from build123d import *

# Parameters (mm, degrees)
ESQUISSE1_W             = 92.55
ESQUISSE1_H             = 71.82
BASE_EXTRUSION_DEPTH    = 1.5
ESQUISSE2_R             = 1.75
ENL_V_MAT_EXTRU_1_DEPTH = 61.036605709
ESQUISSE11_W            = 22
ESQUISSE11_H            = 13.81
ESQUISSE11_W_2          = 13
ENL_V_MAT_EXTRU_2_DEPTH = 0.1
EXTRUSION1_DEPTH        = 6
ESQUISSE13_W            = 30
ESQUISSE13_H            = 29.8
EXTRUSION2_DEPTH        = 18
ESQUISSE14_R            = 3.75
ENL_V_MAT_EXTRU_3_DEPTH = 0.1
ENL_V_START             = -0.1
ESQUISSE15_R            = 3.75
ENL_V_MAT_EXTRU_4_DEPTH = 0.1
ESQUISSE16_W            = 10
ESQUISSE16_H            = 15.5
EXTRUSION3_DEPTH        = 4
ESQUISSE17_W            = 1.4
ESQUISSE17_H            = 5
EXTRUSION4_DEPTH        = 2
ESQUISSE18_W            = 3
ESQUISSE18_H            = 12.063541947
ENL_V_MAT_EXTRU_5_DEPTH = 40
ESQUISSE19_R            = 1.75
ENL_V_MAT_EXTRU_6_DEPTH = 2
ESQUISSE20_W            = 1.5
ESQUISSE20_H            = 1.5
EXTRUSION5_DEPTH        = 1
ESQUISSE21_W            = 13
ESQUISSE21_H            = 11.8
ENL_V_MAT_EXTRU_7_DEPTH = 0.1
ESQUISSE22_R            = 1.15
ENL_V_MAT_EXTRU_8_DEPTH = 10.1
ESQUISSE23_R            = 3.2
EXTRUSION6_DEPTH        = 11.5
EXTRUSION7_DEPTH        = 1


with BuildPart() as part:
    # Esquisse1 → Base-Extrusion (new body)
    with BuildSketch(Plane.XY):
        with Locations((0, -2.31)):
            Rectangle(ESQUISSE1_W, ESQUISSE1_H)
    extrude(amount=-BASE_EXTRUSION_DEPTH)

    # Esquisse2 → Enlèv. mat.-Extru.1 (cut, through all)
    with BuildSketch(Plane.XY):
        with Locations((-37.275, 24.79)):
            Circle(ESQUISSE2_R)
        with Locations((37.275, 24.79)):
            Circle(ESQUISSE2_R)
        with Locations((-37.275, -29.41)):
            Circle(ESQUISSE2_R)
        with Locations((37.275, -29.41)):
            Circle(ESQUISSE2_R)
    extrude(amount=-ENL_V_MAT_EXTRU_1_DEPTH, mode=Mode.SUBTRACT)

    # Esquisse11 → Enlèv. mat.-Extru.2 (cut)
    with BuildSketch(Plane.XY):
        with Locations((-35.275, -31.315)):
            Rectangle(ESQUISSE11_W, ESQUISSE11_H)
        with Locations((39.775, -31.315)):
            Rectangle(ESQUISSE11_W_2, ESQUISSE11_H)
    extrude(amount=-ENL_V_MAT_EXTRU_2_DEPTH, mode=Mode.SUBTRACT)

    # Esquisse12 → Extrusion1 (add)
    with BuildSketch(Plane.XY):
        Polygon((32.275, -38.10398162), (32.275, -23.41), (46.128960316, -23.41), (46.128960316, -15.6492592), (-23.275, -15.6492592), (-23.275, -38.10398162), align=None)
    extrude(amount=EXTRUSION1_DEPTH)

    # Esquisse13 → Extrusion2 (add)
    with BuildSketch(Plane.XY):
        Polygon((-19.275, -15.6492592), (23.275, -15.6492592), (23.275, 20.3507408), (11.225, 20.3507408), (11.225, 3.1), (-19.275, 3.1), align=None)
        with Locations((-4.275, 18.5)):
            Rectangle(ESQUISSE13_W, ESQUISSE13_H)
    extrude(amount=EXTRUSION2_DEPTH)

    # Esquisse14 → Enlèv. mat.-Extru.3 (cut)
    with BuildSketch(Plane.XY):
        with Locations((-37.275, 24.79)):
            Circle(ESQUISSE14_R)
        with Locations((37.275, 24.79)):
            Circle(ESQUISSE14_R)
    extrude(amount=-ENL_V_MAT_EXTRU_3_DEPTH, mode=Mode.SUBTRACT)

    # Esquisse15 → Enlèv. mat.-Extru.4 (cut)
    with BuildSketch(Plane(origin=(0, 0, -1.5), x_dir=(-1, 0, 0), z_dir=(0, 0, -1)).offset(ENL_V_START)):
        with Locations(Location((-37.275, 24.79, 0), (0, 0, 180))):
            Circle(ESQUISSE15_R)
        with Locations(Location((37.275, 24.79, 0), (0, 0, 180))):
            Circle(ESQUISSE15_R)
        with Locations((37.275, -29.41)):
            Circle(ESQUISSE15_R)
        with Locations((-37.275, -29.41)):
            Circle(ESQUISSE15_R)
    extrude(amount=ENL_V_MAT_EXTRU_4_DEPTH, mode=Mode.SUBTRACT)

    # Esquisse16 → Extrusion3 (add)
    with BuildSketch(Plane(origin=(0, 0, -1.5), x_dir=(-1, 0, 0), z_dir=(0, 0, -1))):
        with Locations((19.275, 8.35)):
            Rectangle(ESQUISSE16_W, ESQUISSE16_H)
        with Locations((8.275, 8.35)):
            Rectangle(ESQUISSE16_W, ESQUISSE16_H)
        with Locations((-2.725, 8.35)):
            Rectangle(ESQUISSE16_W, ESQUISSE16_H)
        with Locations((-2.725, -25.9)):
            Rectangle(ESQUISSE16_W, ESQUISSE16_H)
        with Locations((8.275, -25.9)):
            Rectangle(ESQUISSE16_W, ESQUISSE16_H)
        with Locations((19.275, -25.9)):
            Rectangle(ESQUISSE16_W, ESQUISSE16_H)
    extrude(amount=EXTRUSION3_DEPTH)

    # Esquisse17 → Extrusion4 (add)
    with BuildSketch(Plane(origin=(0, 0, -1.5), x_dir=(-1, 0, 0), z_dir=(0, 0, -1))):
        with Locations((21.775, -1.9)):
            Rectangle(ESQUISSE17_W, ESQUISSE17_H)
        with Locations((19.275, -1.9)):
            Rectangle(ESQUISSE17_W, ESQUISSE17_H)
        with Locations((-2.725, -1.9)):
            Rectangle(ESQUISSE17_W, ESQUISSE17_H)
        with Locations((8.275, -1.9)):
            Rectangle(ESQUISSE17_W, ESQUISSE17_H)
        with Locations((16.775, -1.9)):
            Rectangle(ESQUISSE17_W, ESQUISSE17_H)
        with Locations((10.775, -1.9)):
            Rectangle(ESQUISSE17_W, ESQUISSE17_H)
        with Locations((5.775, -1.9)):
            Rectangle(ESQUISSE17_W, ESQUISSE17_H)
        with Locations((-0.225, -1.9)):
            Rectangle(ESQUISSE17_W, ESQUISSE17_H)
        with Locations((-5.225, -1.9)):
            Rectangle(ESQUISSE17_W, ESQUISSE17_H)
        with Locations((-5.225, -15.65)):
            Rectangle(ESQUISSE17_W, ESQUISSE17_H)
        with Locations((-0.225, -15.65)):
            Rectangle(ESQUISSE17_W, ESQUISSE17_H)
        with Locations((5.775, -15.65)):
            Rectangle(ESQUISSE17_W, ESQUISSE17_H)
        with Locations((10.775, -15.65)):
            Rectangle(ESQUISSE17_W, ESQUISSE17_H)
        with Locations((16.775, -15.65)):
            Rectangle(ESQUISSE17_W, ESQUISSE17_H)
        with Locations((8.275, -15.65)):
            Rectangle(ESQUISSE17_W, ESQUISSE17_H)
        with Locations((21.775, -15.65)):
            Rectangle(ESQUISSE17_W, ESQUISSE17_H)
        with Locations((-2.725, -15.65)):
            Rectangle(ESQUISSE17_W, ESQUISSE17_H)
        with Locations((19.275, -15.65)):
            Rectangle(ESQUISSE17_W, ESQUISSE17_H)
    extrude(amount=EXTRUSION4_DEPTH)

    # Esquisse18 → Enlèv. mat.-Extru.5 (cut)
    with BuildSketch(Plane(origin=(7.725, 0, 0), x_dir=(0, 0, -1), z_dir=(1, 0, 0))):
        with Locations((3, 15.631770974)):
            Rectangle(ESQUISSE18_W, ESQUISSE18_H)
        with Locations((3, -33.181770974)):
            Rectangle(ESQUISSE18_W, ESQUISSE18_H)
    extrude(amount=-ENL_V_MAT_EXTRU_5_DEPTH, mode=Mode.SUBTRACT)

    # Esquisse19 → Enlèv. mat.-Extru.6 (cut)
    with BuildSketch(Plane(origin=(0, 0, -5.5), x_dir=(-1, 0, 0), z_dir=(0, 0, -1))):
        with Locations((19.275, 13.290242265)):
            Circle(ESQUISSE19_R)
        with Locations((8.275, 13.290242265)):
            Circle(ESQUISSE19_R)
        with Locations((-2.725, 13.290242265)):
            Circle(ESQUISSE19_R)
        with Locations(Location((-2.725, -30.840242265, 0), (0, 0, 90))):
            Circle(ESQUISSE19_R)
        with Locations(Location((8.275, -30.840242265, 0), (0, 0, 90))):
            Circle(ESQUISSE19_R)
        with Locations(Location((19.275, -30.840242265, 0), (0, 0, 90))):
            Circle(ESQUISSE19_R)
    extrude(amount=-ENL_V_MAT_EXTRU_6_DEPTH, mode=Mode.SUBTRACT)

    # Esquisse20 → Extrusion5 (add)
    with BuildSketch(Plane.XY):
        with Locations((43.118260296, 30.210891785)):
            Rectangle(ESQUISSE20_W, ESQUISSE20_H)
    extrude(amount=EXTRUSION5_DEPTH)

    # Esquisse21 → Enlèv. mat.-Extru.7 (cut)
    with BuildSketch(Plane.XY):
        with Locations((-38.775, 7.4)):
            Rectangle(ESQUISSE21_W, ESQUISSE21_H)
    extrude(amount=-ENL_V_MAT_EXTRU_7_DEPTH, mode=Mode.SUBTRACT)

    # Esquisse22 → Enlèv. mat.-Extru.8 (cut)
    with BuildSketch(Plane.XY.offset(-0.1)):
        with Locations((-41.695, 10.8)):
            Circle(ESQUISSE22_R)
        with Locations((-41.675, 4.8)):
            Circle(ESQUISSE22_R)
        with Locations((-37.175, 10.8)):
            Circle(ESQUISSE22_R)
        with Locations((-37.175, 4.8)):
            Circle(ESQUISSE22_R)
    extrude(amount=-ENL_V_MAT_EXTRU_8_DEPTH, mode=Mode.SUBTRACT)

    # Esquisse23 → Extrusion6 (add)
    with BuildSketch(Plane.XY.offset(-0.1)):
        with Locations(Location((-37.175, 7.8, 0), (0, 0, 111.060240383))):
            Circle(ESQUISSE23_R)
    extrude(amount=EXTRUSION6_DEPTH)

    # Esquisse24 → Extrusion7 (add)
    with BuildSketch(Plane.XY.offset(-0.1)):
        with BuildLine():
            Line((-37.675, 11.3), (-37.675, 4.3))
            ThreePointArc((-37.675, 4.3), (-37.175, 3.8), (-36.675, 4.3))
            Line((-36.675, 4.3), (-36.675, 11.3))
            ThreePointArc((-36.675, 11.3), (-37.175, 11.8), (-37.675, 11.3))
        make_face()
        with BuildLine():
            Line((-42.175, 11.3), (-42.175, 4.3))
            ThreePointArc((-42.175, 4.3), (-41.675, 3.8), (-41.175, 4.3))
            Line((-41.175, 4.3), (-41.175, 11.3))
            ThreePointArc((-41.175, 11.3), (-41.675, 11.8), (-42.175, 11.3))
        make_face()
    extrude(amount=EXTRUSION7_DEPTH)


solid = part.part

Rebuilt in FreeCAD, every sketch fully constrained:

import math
import FreeCAD as App
import Part
import Sketcher

V = App.Vector


def add_polygon(sketch, points):
    """Adds a closed chain of lines whose ends are joined by coincident constraints."""
    first, n = sketch.GeometryCount, len(points)
    for a, b in zip(points, points[1:] + points[:1]):
        sketch.addGeometry(Part.LineSegment(App.Vector(*a, 0), App.Vector(*b, 0)), False)
    for i in range(n):
        sketch.addConstraint(Sketcher.Constraint("Coincident", first + i, 2, first + (i + 1) % n, 1))

doc = App.newDocument("Part")
body = doc.addObject("PartDesign::Body", "Body")

# Sketch on XY plane
sketch1 = body.newObject("Sketcher::SketchObject", "Sketch")
sketch1.AttachmentSupport = (doc.getObject("XY_Plane"), [""])
sketch1.MapMode = "FlatFace"
add_polygon(sketch1, [(-46, 34), (-46, -38), (46, -38), (46, 34)])  # lines 0-3
sketch1.addConstraint(Sketcher.Constraint("Vertical", 0))
sketch1.addConstraint(Sketcher.Constraint("Horizontal", 1))
sketch1.addConstraint(Sketcher.Constraint("Vertical", 2))
sketch1.addConstraint(Sketcher.Constraint("Horizontal", 3))
sketch1.addConstraint(Sketcher.Constraint("DistanceX", 1, 1, 1, 2, 92.55))
sketch1.addConstraint(Sketcher.Constraint("DistanceY", 0, 2, 0, 1, 71.82))
sketch1.addConstraint(Sketcher.Constraint("DistanceY", -1, 1, 2, 2, 33.6))
sketch1.addConstraint(Sketcher.Constraint("DistanceX", 0, 2, -1, 1, 46.275))
pad1 = body.newObject("PartDesign::Pad", "Pad")
pad1.Profile = sketch1
pad1.Length = 1.5
pad1.Reversed = True

# Sketch on XY plane
sketch2 = body.newObject("Sketcher::SketchObject", "Sketch001")
sketch2.AttachmentSupport = (doc.getObject("XY_Plane"), [""])
sketch2.MapMode = "FlatFace"
sketch2.addGeometry(Part.Circle(V(-37.3, 24.8, 0), V(0, 0, 1), 1.8), False)
sketch2.addGeometry(Part.Circle(V(37.3, 24.8, 0), V(0, 0, 1), 1.8), False)
sketch2.addGeometry(Part.Circle(V(-37.3, -29.4, 0), V(0, 0, 1), 1.8), False)
sketch2.addGeometry(Part.Circle(V(37.3, -29.4, 0), V(0, 0, 1), 1.8), False)
sketch2.addConstraint(Sketcher.Constraint("Equal", 0, 1))
sketch2.addConstraint(Sketcher.Constraint("Equal", 1, 2))
sketch2.addConstraint(Sketcher.Constraint("Equal", 2, 3))
sketch2.addConstraint(Sketcher.Constraint("Symmetric", 0, 3, 1, 3, -2))
sketch2.addConstraint(Sketcher.Constraint("Symmetric", 2, 3, 3, 3, -2))
sketch2.addConstraint(Sketcher.Constraint("Vertical", 0, 3, 2, 3))
sketch2.addConstraint(Sketcher.Constraint("Diameter", 0, 3.5))
sketch2.addConstraint(Sketcher.Constraint("DistanceY", 2, 3, 0, 3, 54.2))
sketch2.addConstraint(Sketcher.Constraint("DistanceY", -1, 1, 0, 3, 24.79))
sketch2.addConstraint(Sketcher.Constraint("DistanceX", 0, 3, 1, 3, 74.55))
pocket1 = body.newObject("PartDesign::Pocket", "Pocket")
pocket1.Profile = sketch2
pocket1.Type = "ThroughAll"

# Sketch on XY plane
sketch3 = body.newObject("Sketcher::SketchObject", "Sketch002")
sketch3.AttachmentSupport = (doc.getObject("XY_Plane"), [""])
sketch3.MapMode = "FlatFace"
add_polygon(sketch3, [(-46, -24), (-46, -38), (-24, -38), (-24, -24)])  # lines 0-3
add_polygon(sketch3, [(33, -24), (33, -38), (46, -38), (46, -24)])  # lines 4-7
sketch3.addConstraint(Sketcher.Constraint("Vertical", 0))
sketch3.addConstraint(Sketcher.Constraint("Horizontal", 1))
sketch3.addConstraint(Sketcher.Constraint("Vertical", 2))
sketch3.addConstraint(Sketcher.Constraint("Horizontal", 3))
sketch3.addConstraint(Sketcher.Constraint("Vertical", 4))
sketch3.addConstraint(Sketcher.Constraint("Horizontal", 5))
sketch3.addConstraint(Sketcher.Constraint("Vertical", 6))
sketch3.addConstraint(Sketcher.Constraint("Horizontal", 7))
sketch3.addConstraint(Sketcher.Constraint("Symmetric", 0, 2, 5, 2, -2))
sketch3.addConstraint(Sketcher.Constraint("Horizontal", 3, 2, 6, 2))
sketch3.addConstraint(Sketcher.Constraint("DistanceX", 1, 1, 1, 2, 22.0))
sketch3.addConstraint(Sketcher.Constraint("DistanceX", 5, 1, 5, 2, 13.0))
sketch3.addConstraint(Sketcher.Constraint("DistanceY", 0, 2, 0, 1, 13.81))
sketch3.addConstraint(Sketcher.Constraint("DistanceY", 0, 2, -1, 1, 38.22))
sketch3.addConstraint(Sketcher.Constraint("DistanceX", 1, 2, 4, 2, 57.55))
pocket2 = body.newObject("PartDesign::Pocket", "Pocket001")
pocket2.Profile = sketch3
pocket2.Length = 0.1

# Sketch on XY plane
sketch4 = body.newObject("Sketcher::SketchObject", "Sketch003")
sketch4.AttachmentSupport = (doc.getObject("XY_Plane"), [""])
sketch4.MapMode = "FlatFace"
add_polygon(sketch4, [(32, -38), (32, -23), (46, -23), (46, -16), (-23, -16), (-23, -38)])  # lines 0-5
sketch4.addConstraint(Sketcher.Constraint("Vertical", 0))
sketch4.addConstraint(Sketcher.Constraint("Horizontal", 1))
sketch4.addConstraint(Sketcher.Constraint("Vertical", 2))
sketch4.addConstraint(Sketcher.Constraint("Horizontal", 3))
sketch4.addConstraint(Sketcher.Constraint("Vertical", 4))
sketch4.addConstraint(Sketcher.Constraint("Horizontal", 5))
sketch4.addConstraint(Sketcher.Constraint("DistanceX", 5, 1, 5, 2, 55.55))
sketch4.addConstraint(Sketcher.Constraint("DistanceY", 0, 2, -1, 1, 23.41))
sketch4.addConstraint(Sketcher.Constraint("DistanceX", -1, 1, 0, 2, 32.275))
sketch4.addConstraint(Sketcher.Constraint("DistanceX", 1, 1, 1, 2, 13.85396))
sketch4.addConstraint(Sketcher.Constraint("DistanceY", 0, 1, 0, 2, 14.693982))
sketch4.addConstraint(Sketcher.Constraint("DistanceY", 2, 1, 2, 2, 7.760741))
pad2 = body.newObject("PartDesign::Pad", "Pad001")
pad2.Profile = sketch4
pad2.Length = 6

# Sketch on XY plane
sketch5 = body.newObject("Sketcher::SketchObject", "Sketch004")
sketch5.AttachmentSupport = (doc.getObject("XY_Plane"), [""])
sketch5.MapMode = "FlatFace"
add_polygon(sketch5, [(-19, -16), (23, -16), (23, 20), (11, 20), (11, 3), (-19, 3)])  # lines 0-5
add_polygon(sketch5, [(-19, 33), (-19, 4), (11, 4), (11, 33)])  # lines 6-9
sketch5.addConstraint(Sketcher.Constraint("Horizontal", 0))
sketch5.addConstraint(Sketcher.Constraint("Vertical", 1))
sketch5.addConstraint(Sketcher.Constraint("Horizontal", 2))
sketch5.addConstraint(Sketcher.Constraint("Vertical", 3))
sketch5.addConstraint(Sketcher.Constraint("Horizontal", 4))
sketch5.addConstraint(Sketcher.Constraint("Vertical", 5))
sketch5.addConstraint(Sketcher.Constraint("Vertical", 6))
sketch5.addConstraint(Sketcher.Constraint("Horizontal", 7))
sketch5.addConstraint(Sketcher.Constraint("Vertical", 8))
sketch5.addConstraint(Sketcher.Constraint("Horizontal", 9))
sketch5.addConstraint(Sketcher.Constraint("Vertical", 5, 2, 6, 2))
sketch5.addConstraint(Sketcher.Constraint("DistanceX", 7, 1, 7, 2, 30.0))
sketch5.addConstraint(Sketcher.Constraint("DistanceY", 1, 1, 1, 2, 36.0))
sketch5.addConstraint(Sketcher.Constraint("DistanceX", 4, 2, 4, 1, 30.5))
sketch5.addConstraint(Sketcher.Constraint("DistanceY", 6, 2, 6, 1, 29.8))
sketch5.addConstraint(Sketcher.Constraint("DistanceX", 0, 1, 0, 2, 42.55))
sketch5.addConstraint(Sketcher.Constraint("DistanceY", -1, 1, 3, 2, 3.1))
sketch5.addConstraint(Sketcher.Constraint("DistanceY", -1, 1, 6, 2, 3.6))
sketch5.addConstraint(Sketcher.Constraint("DistanceX", -1, 1, 0, 2, 23.275))
sketch5.addConstraint(Sketcher.Constraint("DistanceY", 3, 2, 3, 1, 17.250741))
pad3 = body.newObject("PartDesign::Pad", "Pad002")
pad3.Profile = sketch5
pad3.Length = 18

# Sketch on XY plane
sketch6 = body.newObject("Sketcher::SketchObject", "Sketch005")
sketch6.AttachmentSupport = (doc.getObject("XY_Plane"), [""])
sketch6.MapMode = "FlatFace"
sketch6.addGeometry(Part.Circle(V(-37.3, 24.8, 0), V(0, 0, 1), 3.8), False)
sketch6.addGeometry(Part.Circle(V(37.3, 24.8, 0), V(0, 0, 1), 3.8), False)
sketch6.addConstraint(Sketcher.Constraint("Equal", 0, 1))
sketch6.addConstraint(Sketcher.Constraint("Symmetric", 0, 3, 1, 3, -2))
sketch6.addConstraint(Sketcher.Constraint("Diameter", 0, 7.5))
sketch6.addConstraint(Sketcher.Constraint("DistanceY", -1, 1, 0, 3, 24.79))
sketch6.addConstraint(Sketcher.Constraint("DistanceX", 0, 3, 1, 3, 74.55))
pocket3 = body.newObject("PartDesign::Pocket", "Pocket002")
pocket3.Profile = sketch6
pocket3.Length = 0.1

# Sketch on XY plane
sketch7 = body.newObject("Sketcher::SketchObject", "Sketch006")
sketch7.AttachmentSupport = (doc.getObject("XY_Plane"), [""])
sketch7.MapMode = "FlatFace"
sketch7.AttachmentOffset = App.Placement(V(0, 0, -1.4), App.Rotation())
sketch7.addGeometry(Part.Circle(V(37.3, 24.8, 0), V(0, 0, 1), 3.8), False)
sketch7.addGeometry(Part.Circle(V(-37.3, 24.8, 0), V(0, 0, 1), 3.8), False)
sketch7.addGeometry(Part.Circle(V(-37.3, -29.4, 0), V(0, 0, 1), 3.8), False)
sketch7.addGeometry(Part.Circle(V(37.3, -29.4, 0), V(0, 0, 1), 3.8), False)
sketch7.addConstraint(Sketcher.Constraint("Equal", 0, 1))
sketch7.addConstraint(Sketcher.Constraint("Equal", 1, 2))
sketch7.addConstraint(Sketcher.Constraint("Equal", 2, 3))
sketch7.addConstraint(Sketcher.Constraint("Symmetric", 0, 3, 1, 3, -2))
sketch7.addConstraint(Sketcher.Constraint("Symmetric", 2, 3, 3, 3, -2))
sketch7.addConstraint(Sketcher.Constraint("Vertical", 1, 3, 2, 3))
sketch7.addConstraint(Sketcher.Constraint("Diameter", 0, 7.5))
sketch7.addConstraint(Sketcher.Constraint("DistanceY", 2, 3, 1, 3, 54.2))
sketch7.addConstraint(Sketcher.Constraint("DistanceY", -1, 1, 0, 3, 24.79))
sketch7.addConstraint(Sketcher.Constraint("DistanceX", 1, 3, 0, 3, 74.55))
pocket4 = body.newObject("PartDesign::Pocket", "Pocket003")
pocket4.Profile = sketch7
pocket4.Length = 0.1

# Sketch on XY plane
sketch8 = body.newObject("Sketcher::SketchObject", "Sketch007")
sketch8.AttachmentSupport = (doc.getObject("XY_Plane"), [""])
sketch8.MapMode = "FlatFace"
sketch8.AttachmentOffset = App.Placement(V(0, 0, -1.5), App.Rotation())
add_polygon(sketch8, [(-14, 16), (-14, 1), (-24, 1), (-24, 16)])  # lines 0-3
add_polygon(sketch8, [(-3, 16), (-3, 1), (-13, 1), (-13, 16)])  # lines 4-7
add_polygon(sketch8, [(8, 16), (8, 1), (-2, 1), (-2, 16)])  # lines 8-11
add_polygon(sketch8, [(8, -18), (8, -34), (-2, -34), (-2, -18)])  # lines 12-15
add_polygon(sketch8, [(-3, -18), (-3, -34), (-13, -34), (-13, -18)])  # lines 16-19
add_polygon(sketch8, [(-14, -18), (-14, -34), (-24, -34), (-24, -18)])  # lines 20-23
sketch8.addConstraint(Sketcher.Constraint("Vertical", 0))
sketch8.addConstraint(Sketcher.Constraint("Horizontal", 1))
sketch8.addConstraint(Sketcher.Constraint("Vertical", 2))
sketch8.addConstraint(Sketcher.Constraint("Horizontal", 3))
sketch8.addConstraint(Sketcher.Constraint("Vertical", 4))
sketch8.addConstraint(Sketcher.Constraint("Horizontal", 5))
sketch8.addConstraint(Sketcher.Constraint("Vertical", 6))
sketch8.addConstraint(Sketcher.Constraint("Horizontal", 7))
sketch8.addConstraint(Sketcher.Constraint("Vertical", 8))
sketch8.addConstraint(Sketcher.Constraint("Horizontal", 9))
sketch8.addConstraint(Sketcher.Constraint("Vertical", 10))
sketch8.addConstraint(Sketcher.Constraint("Horizontal", 11))
sketch8.addConstraint(Sketcher.Constraint("Vertical", 12))
sketch8.addConstraint(Sketcher.Constraint("Horizontal", 13))
sketch8.addConstraint(Sketcher.Constraint("Vertical", 14))
sketch8.addConstraint(Sketcher.Constraint("Horizontal", 15))
sketch8.addConstraint(Sketcher.Constraint("Vertical", 16))
sketch8.addConstraint(Sketcher.Constraint("Horizontal", 17))
sketch8.addConstraint(Sketcher.Constraint("Vertical", 18))
sketch8.addConstraint(Sketcher.Constraint("Horizontal", 19))
sketch8.addConstraint(Sketcher.Constraint("Vertical", 20))
sketch8.addConstraint(Sketcher.Constraint("Horizontal", 21))
sketch8.addConstraint(Sketcher.Constraint("Vertical", 22))
sketch8.addConstraint(Sketcher.Constraint("Horizontal", 23))
sketch8.addConstraint(Sketcher.Constraint("Horizontal", 1, 2, 4, 2))
sketch8.addConstraint(Sketcher.Constraint("Horizontal", 3, 2, 6, 2))
sketch8.addConstraint(Sketcher.Constraint("Horizontal", 5, 2, 8, 2))
sketch8.addConstraint(Sketcher.Constraint("Horizontal", 7, 2, 10, 2))
sketch8.addConstraint(Sketcher.Constraint("Horizontal", 13, 2, 16, 2))
sketch8.addConstraint(Sketcher.Constraint("Horizontal", 15, 2, 18, 2))
sketch8.addConstraint(Sketcher.Constraint("Horizontal", 17, 2, 20, 2))
sketch8.addConstraint(Sketcher.Constraint("Horizontal", 19, 2, 22, 2))
sketch8.addConstraint(Sketcher.Constraint("Vertical", 11, 2, 12, 2))
sketch8.addConstraint(Sketcher.Constraint("Vertical", 10, 2, 13, 2))
sketch8.addConstraint(Sketcher.Constraint("Vertical", 7, 2, 16, 2))
sketch8.addConstraint(Sketcher.Constraint("Vertical", 6, 2, 17, 2))
sketch8.addConstraint(Sketcher.Constraint("Vertical", 3, 2, 20, 2))
sketch8.addConstraint(Sketcher.Constraint("Vertical", 2, 2, 21, 2))
sketch8.addConstraint(Sketcher.Constraint("Equal", 3, 5))
sketch8.addConstraint(Sketcher.Constraint("Equal", 7, 9))
sketch8.addConstraint(Sketcher.Constraint("Equal", 10, 12))
sketch8.addConstraint(Sketcher.Constraint("DistanceX", 1, 2, 1, 1, 10.0))
sketch8.addConstraint(Sketcher.Constraint("DistanceY", 0, 2, 0, 1, 15.5))
sketch8.addConstraint(Sketcher.Constraint("DistanceX", 0, 2, 4, 2, 11.0))
sketch8.addConstraint(Sketcher.Constraint("DistanceX", 4, 2, 8, 2, 11.0))
sketch8.addConstraint(Sketcher.Constraint("DistanceY", -1, 1, 0, 2, 0.6))
sketch8.addConstraint(Sketcher.Constraint("DistanceY", 12, 2, -1, 1, 33.65))
sketch8.addConstraint(Sketcher.Constraint("DistanceX", 0, 2, -1, 1, 14.275))
pad4 = body.newObject("PartDesign::Pad", "Pad003")
pad4.Profile = sketch8
pad4.Length = 4
pad4.Reversed = True

# Sketch on XY plane
sketch9 = body.newObject("Sketcher::SketchObject", "Sketch008")
sketch9.AttachmentSupport = (doc.getObject("XY_Plane"), [""])
sketch9.MapMode = "FlatFace"
sketch9.AttachmentOffset = App.Placement(V(0, 0, -1.5), App.Rotation())
add_polygon(sketch9, [(-21.1, 0.6), (-21.1, -4.4), (-22.5, -4.4), (-22.5, 0.6)])  # lines 0-3
add_polygon(sketch9, [(-18.6, 0.6), (-18.6, -4.4), (-20, -4.4), (-20, 0.6)])  # lines 4-7
add_polygon(sketch9, [(3.4, 0.6), (3.4, -4.4), (2, -4.4), (2, 0.6)])  # lines 8-11
add_polygon(sketch9, [(-7.6, 0.6), (-7.6, -4.4), (-9, -4.4), (-9, 0.6)])  # lines 12-15
add_polygon(sketch9, [(-16.1, 0.6), (-16.1, -4.4), (-17.5, -4.4), (-17.5, 0.6)])  # lines 16-19
add_polygon(sketch9, [(-10.1, 0.6), (-10.1, -4.4), (-11.5, -4.4), (-11.5, 0.6)])  # lines 20-23
add_polygon(sketch9, [(-5.1, 0.6), (-5.1, -4.4), (-6.5, -4.4), (-6.5, 0.6)])  # lines 24-27
add_polygon(sketch9, [(0.9, 0.6), (0.9, -4.4), (-0.5, -4.4), (-0.5, 0.6)])  # lines 28-31
add_polygon(sketch9, [(5.9, 0.6), (5.9, -4.4), (4.5, -4.4), (4.5, 0.6)])  # lines 32-35
add_polygon(sketch9, [(5.9, -13.2), (5.9, -18.1), (4.5, -18.1), (4.5, -13.2)])  # lines 36-39
add_polygon(sketch9, [(0.9, -13.2), (0.9, -18.1), (-0.5, -18.1), (-0.5, -13.2)])  # lines 40-43
add_polygon(sketch9, [(-5.1, -13.2), (-5.1, -18.1), (-6.5, -18.1), (-6.5, -13.2)])  # lines 44-47
add_polygon(sketch9, [(-10.1, -13.2), (-10.1, -18.1), (-11.5, -18.1), (-11.5, -13.2)])  # lines 48-51
add_polygon(sketch9, [(-16.1, -13.2), (-16.1, -18.1), (-17.5, -18.1), (-17.5, -13.2)])  # lines 52-55
add_polygon(sketch9, [(-7.6, -13.2), (-7.6, -18.1), (-9, -18.1), (-9, -13.2)])  # lines 56-59
add_polygon(sketch9, [(-21.1, -13.2), (-21.1, -18.1), (-22.5, -18.1), (-22.5, -13.2)])  # lines 60-63
add_polygon(sketch9, [(3.4, -13.2), (3.4, -18.1), (2, -18.1), (2, -13.2)])  # lines 64-67
add_polygon(sketch9, [(-18.6, -13.2), (-18.6, -18.1), (-20, -18.1), (-20, -13.2)])  # lines 68-71
sketch9.addConstraint(Sketcher.Constraint("Vertical", 0))
sketch9.addConstraint(Sketcher.Constraint("Horizontal", 1))
sketch9.addConstraint(Sketcher.Constraint("Vertical", 2))
sketch9.addConstraint(Sketcher.Constraint("Horizontal", 3))
sketch9.addConstraint(Sketcher.Constraint("Vertical", 4))
sketch9.addConstraint(Sketcher.Constraint("Horizontal", 5))
sketch9.addConstraint(Sketcher.Constraint("Vertical", 6))
sketch9.addConstraint(Sketcher.Constraint("Horizontal", 7))
sketch9.addConstraint(Sketcher.Constraint("Vertical", 8))
sketch9.addConstraint(Sketcher.Constraint("Horizontal", 9))
sketch9.addConstraint(Sketcher.Constraint("Vertical", 10))
sketch9.addConstraint(Sketcher.Constraint("Horizontal", 11))
sketch9.addConstraint(Sketcher.Constraint("Vertical", 12))
sketch9.addConstraint(Sketcher.Constraint("Horizontal", 13))
sketch9.addConstraint(Sketcher.Constraint("Vertical", 14))
sketch9.addConstraint(Sketcher.Constraint("Horizontal", 15))
sketch9.addConstraint(Sketcher.Constraint("Vertical", 16))
sketch9.addConstraint(Sketcher.Constraint("Horizontal", 17))
sketch9.addConstraint(Sketcher.Constraint("Vertical", 18))
sketch9.addConstraint(Sketcher.Constraint("Horizontal", 19))
sketch9.addConstraint(Sketcher.Constraint("Vertical", 20))
sketch9.addConstraint(Sketcher.Constraint("Horizontal", 21))
sketch9.addConstraint(Sketcher.Constraint("Vertical", 22))
sketch9.addConstraint(Sketcher.Constraint("Horizontal", 23))
sketch9.addConstraint(Sketcher.Constraint("Vertical", 24))
sketch9.addConstraint(Sketcher.Constraint("Horizontal", 25))
sketch9.addConstraint(Sketcher.Constraint("Vertical", 26))
sketch9.addConstraint(Sketcher.Constraint("Horizontal", 27))
sketch9.addConstraint(Sketcher.Constraint("Vertical", 28))
sketch9.addConstraint(Sketcher.Constraint("Horizontal", 29))
sketch9.addConstraint(Sketcher.Constraint("Vertical", 30))
sketch9.addConstraint(Sketcher.Constraint("Horizontal", 31))
sketch9.addConstraint(Sketcher.Constraint("Vertical", 32))
sketch9.addConstraint(Sketcher.Constraint("Horizontal", 33))
sketch9.addConstraint(Sketcher.Constraint("Vertical", 34))
sketch9.addConstraint(Sketcher.Constraint("Horizontal", 35))
sketch9.addConstraint(Sketcher.Constraint("Vertical", 36))
sketch9.addConstraint(Sketcher.Constraint("Horizontal", 37))
sketch9.addConstraint(Sketcher.Constraint("Vertical", 38))
sketch9.addConstraint(Sketcher.Constraint("Horizontal", 39))
sketch9.addConstraint(Sketcher.Constraint("Vertical", 40))
sketch9.addConstraint(Sketcher.Constraint("Horizontal", 41))
sketch9.addConstraint(Sketcher.Constraint("Vertical", 42))
sketch9.addConstraint(Sketcher.Constraint("Horizontal", 43))
sketch9.addConstraint(Sketcher.Constraint("Vertical", 44))
sketch9.addConstraint(Sketcher.Constraint("Horizontal", 45))
sketch9.addConstraint(Sketcher.Constraint("Vertical", 46))
sketch9.addConstraint(Sketcher.Constraint("Horizontal", 47))
sketch9.addConstraint(Sketcher.Constraint("Vertical", 48))
sketch9.addConstraint(Sketcher.Constraint("Horizontal", 49))
sketch9.addConstraint(Sketcher.Constraint("Vertical", 50))
sketch9.addConstraint(Sketcher.Constraint("Horizontal", 51))
sketch9.addConstraint(Sketcher.Constraint("Vertical", 52))
sketch9.addConstraint(Sketcher.Constraint("Horizontal", 53))
sketch9.addConstraint(Sketcher.Constraint("Vertical", 54))
sketch9.addConstraint(Sketcher.Constraint("Horizontal", 55))
sketch9.addConstraint(Sketcher.Constraint("Vertical", 56))
sketch9.addConstraint(Sketcher.Constraint("Horizontal", 57))
sketch9.addConstraint(Sketcher.Constraint("Vertical", 58))
sketch9.addConstraint(Sketcher.Constraint("Horizontal", 59))
sketch9.addConstraint(Sketcher.Constraint("Vertical", 60))
sketch9.addConstraint(Sketcher.Constraint("Horizontal", 61))
sketch9.addConstraint(Sketcher.Constraint("Vertical", 62))
sketch9.addConstraint(Sketcher.Constraint("Horizontal", 63))
sketch9.addConstraint(Sketcher.Constraint("Vertical", 64))
sketch9.addConstraint(Sketcher.Constraint("Horizontal", 65))
sketch9.addConstraint(Sketcher.Constraint("Vertical", 66))
sketch9.addConstraint(Sketcher.Constraint("Horizontal", 67))
sketch9.addConstraint(Sketcher.Constraint("Vertical", 68))
sketch9.addConstraint(Sketcher.Constraint("Horizontal", 69))
sketch9.addConstraint(Sketcher.Constraint("Vertical", 70))
sketch9.addConstraint(Sketcher.Constraint("Horizontal", 71))
sketch9.addConstraint(Sketcher.Constraint("Horizontal", 1, 2, 4, 2))
sketch9.addConstraint(Sketcher.Constraint("Horizontal", 3, 2, 6, 2))
sketch9.addConstraint(Sketcher.Constraint("Horizontal", 5, 2, 8, 2))
sketch9.addConstraint(Sketcher.Constraint("Horizontal", 7, 2, 10, 2))
sketch9.addConstraint(Sketcher.Constraint("Horizontal", 9, 2, 12, 2))
sketch9.addConstraint(Sketcher.Constraint("Horizontal", 11, 2, 14, 2))
sketch9.addConstraint(Sketcher.Constraint("Horizontal", 13, 2, 16, 2))
sketch9.addConstraint(Sketcher.Constraint("Horizontal", 15, 2, 18, 2))
sketch9.addConstraint(Sketcher.Constraint("Horizontal", 17, 2, 20, 2))
sketch9.addConstraint(Sketcher.Constraint("Horizontal", 19, 2, 22, 2))
sketch9.addConstraint(Sketcher.Constraint("Horizontal", 21, 2, 24, 2))
sketch9.addConstraint(Sketcher.Constraint("Horizontal", 23, 2, 26, 2))
sketch9.addConstraint(Sketcher.Constraint("Horizontal", 25, 2, 28, 2))
sketch9.addConstraint(Sketcher.Constraint("Horizontal", 27, 2, 30, 2))
sketch9.addConstraint(Sketcher.Constraint("Horizontal", 29, 2, 32, 2))
sketch9.addConstraint(Sketcher.Constraint("Horizontal", 31, 2, 34, 2))
sketch9.addConstraint(Sketcher.Constraint("Horizontal", 37, 2, 40, 2))
sketch9.addConstraint(Sketcher.Constraint("Horizontal", 39, 2, 42, 2))
sketch9.addConstraint(Sketcher.Constraint("Horizontal", 41, 2, 44, 2))
sketch9.addConstraint(Sketcher.Constraint("Horizontal", 43, 2, 46, 2))
sketch9.addConstraint(Sketcher.Constraint("Horizontal", 45, 2, 48, 2))
sketch9.addConstraint(Sketcher.Constraint("Horizontal", 47, 2, 50, 2))
sketch9.addConstraint(Sketcher.Constraint("Horizontal", 49, 2, 52, 2))
sketch9.addConstraint(Sketcher.Constraint("Horizontal", 51, 2, 54, 2))
sketch9.addConstraint(Sketcher.Constraint("Horizontal", 53, 2, 56, 2))
sketch9.addConstraint(Sketcher.Constraint("Horizontal", 55, 2, 58, 2))
sketch9.addConstraint(Sketcher.Constraint("Horizontal", 57, 2, 60, 2))
sketch9.addConstraint(Sketcher.Constraint("Horizontal", 59, 2, 62, 2))
sketch9.addConstraint(Sketcher.Constraint("Horizontal", 61, 2, 64, 2))
sketch9.addConstraint(Sketcher.Constraint("Horizontal", 63, 2, 66, 2))
sketch9.addConstraint(Sketcher.Constraint("Horizontal", 65, 2, 68, 2))
sketch9.addConstraint(Sketcher.Constraint("Horizontal", 67, 2, 70, 2))
sketch9.addConstraint(Sketcher.Constraint("Vertical", 35, 2, 36, 2))
sketch9.addConstraint(Sketcher.Constraint("Vertical", 34, 2, 37, 2))
sketch9.addConstraint(Sketcher.Constraint("Vertical", 31, 2, 40, 2))
sketch9.addConstraint(Sketcher.Constraint("Vertical", 30, 2, 41, 2))
sketch9.addConstraint(Sketcher.Constraint("Vertical", 27, 2, 44, 2))
sketch9.addConstraint(Sketcher.Constraint("Vertical", 26, 2, 45, 2))
sketch9.addConstraint(Sketcher.Constraint("Vertical", 23, 2, 48, 2))
sketch9.addConstraint(Sketcher.Constraint("Vertical", 22, 2, 49, 2))
sketch9.addConstraint(Sketcher.Constraint("Vertical", 19, 2, 52, 2))
sketch9.addConstraint(Sketcher.Constraint("Vertical", 18, 2, 53, 2))
sketch9.addConstraint(Sketcher.Constraint("Vertical", 15, 2, 56, 2))
sketch9.addConstraint(Sketcher.Constraint("Vertical", 14, 2, 57, 2))
sketch9.addConstraint(Sketcher.Constraint("Vertical", 3, 2, 60, 2))
sketch9.addConstraint(Sketcher.Constraint("Vertical", 2, 2, 61, 2))
sketch9.addConstraint(Sketcher.Constraint("Vertical", 11, 2, 64, 2))
sketch9.addConstraint(Sketcher.Constraint("Vertical", 10, 2, 65, 2))
sketch9.addConstraint(Sketcher.Constraint("Vertical", 7, 2, 68, 2))
sketch9.addConstraint(Sketcher.Constraint("Vertical", 6, 2, 69, 2))
sketch9.addConstraint(Sketcher.Constraint("Equal", 3, 5))
sketch9.addConstraint(Sketcher.Constraint("Equal", 7, 9))
sketch9.addConstraint(Sketcher.Constraint("Equal", 11, 13))
sketch9.addConstraint(Sketcher.Constraint("Equal", 15, 17))
sketch9.addConstraint(Sketcher.Constraint("Equal", 19, 21))
sketch9.addConstraint(Sketcher.Constraint("Equal", 23, 25))
sketch9.addConstraint(Sketcher.Constraint("Equal", 27, 29))
sketch9.addConstraint(Sketcher.Constraint("Equal", 31, 33))
sketch9.addConstraint(Sketcher.Constraint("Equal", 34, 36))
sketch9.addConstraint(Sketcher.Constraint("DistanceY", 0, 2, 0, 1, 5.0))
sketch9.addConstraint(Sketcher.Constraint("DistanceX", 1, 2, 1, 1, 1.4))
sketch9.addConstraint(Sketcher.Constraint("DistanceY", 0, 2, -1, 1, 4.4))
sketch9.addConstraint(Sketcher.Constraint("DistanceY", 36, 2, -1, 1, 18.15))
sketch9.addConstraint(Sketcher.Constraint("DistanceX", 0, 2, -1, 1, 21.075))
sketch9.addConstraint(Sketcher.Constraint("DistanceX", 4, 2, -1, 1, 18.575))
sketch9.addConstraint(Sketcher.Constraint("DistanceX", -1, 1, 8, 2, 3.425))
sketch9.addConstraint(Sketcher.Constraint("DistanceX", 12, 2, -1, 1, 7.575))
sketch9.addConstraint(Sketcher.Constraint("DistanceX", 16, 2, -1, 1, 16.075))
sketch9.addConstraint(Sketcher.Constraint("DistanceX", 20, 2, -1, 1, 10.075))
sketch9.addConstraint(Sketcher.Constraint("DistanceX", 24, 2, -1, 1, 5.075))
sketch9.addConstraint(Sketcher.Constraint("DistanceX", -1, 1, 28, 2, 0.925))
sketch9.addConstraint(Sketcher.Constraint("DistanceX", -1, 1, 32, 2, 5.925))
pad5 = body.newObject("PartDesign::Pad", "Pad004")
pad5.Profile = sketch9
pad5.Length = 2
pad5.Reversed = True

# Sketch on YZ plane
sketch10 = body.newObject("Sketcher::SketchObject", "Sketch009")
sketch10.AttachmentSupport = (doc.getObject("YZ_Plane"), [""])
sketch10.MapMode = "FlatFace"
sketch10.AttachmentOffset = App.Placement(V(0, 0, 7.725), App.Rotation())
add_polygon(sketch10, [(21.7, -1.5), (9.6, -1.5), (9.6, -4.5), (21.7, -4.5)])  # lines 0-3
add_polygon(sketch10, [(-27.2, -1.5), (-39.2, -1.5), (-39.2, -4.5), (-27.2, -4.5)])  # lines 4-7
sketch10.addConstraint(Sketcher.Constraint("Horizontal", 0))
sketch10.addConstraint(Sketcher.Constraint("Vertical", 1))
sketch10.addConstraint(Sketcher.Constraint("Horizontal", 2))
sketch10.addConstraint(Sketcher.Constraint("Vertical", 3))
sketch10.addConstraint(Sketcher.Constraint("Horizontal", 4))
sketch10.addConstraint(Sketcher.Constraint("Vertical", 5))
sketch10.addConstraint(Sketcher.Constraint("Horizontal", 6))
sketch10.addConstraint(Sketcher.Constraint("Vertical", 7))
sketch10.addConstraint(Sketcher.Constraint("Horizontal", 3, 2, 4, 2))
sketch10.addConstraint(Sketcher.Constraint("Horizontal", 2, 2, 5, 2))
sketch10.addConstraint(Sketcher.Constraint("Equal", 2, 4))
sketch10.addConstraint(Sketcher.Constraint("DistanceY", 1, 2, 1, 1, 3.0))
sketch10.addConstraint(Sketcher.Constraint("DistanceX", -1, 1, 0, 2, 9.6))
sketch10.addConstraint(Sketcher.Constraint("DistanceY", 0, 2, -1, 1, 1.5))
sketch10.addConstraint(Sketcher.Constraint("DistanceX", 6, 2, -1, 1, 27.15))
sketch10.addConstraint(Sketcher.Constraint("DistanceX", 0, 2, 0, 1, 12.063542))
pocket5 = body.newObject("PartDesign::Pocket", "Pocket004")
pocket5.Profile = sketch10
pocket5.Length = 40

# Sketch on XY plane
sketch11 = body.newObject("Sketcher::SketchObject", "Sketch010")
sketch11.AttachmentSupport = (doc.getObject("XY_Plane"), [""])
sketch11.MapMode = "FlatFace"
sketch11.AttachmentOffset = App.Placement(V(0, 0, -5.5), App.Rotation())
sketch11.addGeometry(Part.Circle(V(-19.3, 13.3, 0), V(0, 0, 1), 1.8), False)
sketch11.addGeometry(Part.Circle(V(-8.3, 13.3, 0), V(0, 0, 1), 1.8), False)
sketch11.addGeometry(Part.Circle(V(2.7, 13.3, 0), V(0, 0, 1), 1.8), False)
sketch11.addGeometry(Part.Circle(V(2.7, -30.8, 0), V(0, 0, 1), 1.8), False)
sketch11.addGeometry(Part.Circle(V(-8.3, -30.8, 0), V(0, 0, 1), 1.8), False)
sketch11.addGeometry(Part.Circle(V(-19.3, -30.8, 0), V(0, 0, 1), 1.8), False)
sketch11.addConstraint(Sketcher.Constraint("Equal", 0, 1))
sketch11.addConstraint(Sketcher.Constraint("Equal", 1, 2))
sketch11.addConstraint(Sketcher.Constraint("Equal", 2, 3))
sketch11.addConstraint(Sketcher.Constraint("Equal", 3, 4))
sketch11.addConstraint(Sketcher.Constraint("Equal", 4, 5))
sketch11.addConstraint(Sketcher.Constraint("Horizontal", 0, 3, 1, 3))
sketch11.addConstraint(Sketcher.Constraint("Horizontal", 1, 3, 2, 3))
sketch11.addConstraint(Sketcher.Constraint("Horizontal", 3, 3, 4, 3))
sketch11.addConstraint(Sketcher.Constraint("Horizontal", 4, 3, 5, 3))
sketch11.addConstraint(Sketcher.Constraint("Vertical", 2, 3, 3, 3))
sketch11.addConstraint(Sketcher.Constraint("Vertical", 1, 3, 4, 3))
sketch11.addConstraint(Sketcher.Constraint("Vertical", 0, 3, 5, 3))
sketch11.addConstraint(Sketcher.Constraint("Diameter", 0, 3.5))
sketch11.addConstraint(Sketcher.Constraint("DistanceX", 0, 3, 1, 3, 11.0))
sketch11.addConstraint(Sketcher.Constraint("DistanceX", 1, 3, 2, 3, 11.0))
sketch11.addConstraint(Sketcher.Constraint("DistanceX", 0, 3, -1, 1, 19.275))
sketch11.addConstraint(Sketcher.Constraint("DistanceY", -1, 1, 0, 3, 13.290242))
sketch11.addConstraint(Sketcher.Constraint("DistanceY", 3, 3, -1, 1, 30.840242))
pocket6 = body.newObject("PartDesign::Pocket", "Pocket005")
pocket6.Profile = sketch11
pocket6.Length = 2
pocket6.Reversed = True

# Sketch on XY plane
sketch12 = body.newObject("Sketcher::SketchObject", "Sketch011")
sketch12.AttachmentSupport = (doc.getObject("XY_Plane"), [""])
sketch12.MapMode = "FlatFace"
add_polygon(sketch12, [(42.4, 31), (42.4, 29.5), (43.9, 29.5), (43.9, 31)])  # lines 0-3
sketch12.addConstraint(Sketcher.Constraint("Vertical", 0))
sketch12.addConstraint(Sketcher.Constraint("Horizontal", 1))
sketch12.addConstraint(Sketcher.Constraint("Vertical", 2))
sketch12.addConstraint(Sketcher.Constraint("Horizontal", 3))
sketch12.addConstraint(Sketcher.Constraint("Equal", 3, 0))
sketch12.addConstraint(Sketcher.Constraint("DistanceX", 1, 1, 1, 2, 1.5))
sketch12.addConstraint(Sketcher.Constraint("DistanceX", -1, 1, 0, 2, 42.36826))
sketch12.addConstraint(Sketcher.Constraint("DistanceY", -1, 1, 0, 2, 29.460892))
pad6 = body.newObject("PartDesign::Pad", "Pad005")
pad6.Profile = sketch12
pad6.Length = 1

# Sketch on XY plane
sketch13 = body.newObject("Sketcher::SketchObject", "Sketch012")
sketch13.AttachmentSupport = (doc.getObject("XY_Plane"), [""])
sketch13.MapMode = "FlatFace"
add_polygon(sketch13, [(-45, 13), (-45, 2), (-32, 2), (-32, 13)])  # lines 0-3
sketch13.addConstraint(Sketcher.Constraint("Vertical", 0))
sketch13.addConstraint(Sketcher.Constraint("Horizontal", 1))
sketch13.addConstraint(Sketcher.Constraint("Vertical", 2))
sketch13.addConstraint(Sketcher.Constraint("Horizontal", 3))
sketch13.addConstraint(Sketcher.Constraint("DistanceX", 1, 1, 1, 2, 13.0))
sketch13.addConstraint(Sketcher.Constraint("DistanceY", 0, 2, 0, 1, 11.8))
sketch13.addConstraint(Sketcher.Constraint("DistanceY", -1, 1, 0, 2, 1.5))
sketch13.addConstraint(Sketcher.Constraint("DistanceX", 0, 2, -1, 1, 45.275))
pocket7 = body.newObject("PartDesign::Pocket", "Pocket006")
pocket7.Profile = sketch13
pocket7.Length = 0.1

# Sketch on XY plane
sketch14 = body.newObject("Sketcher::SketchObject", "Sketch013")
sketch14.AttachmentSupport = (doc.getObject("XY_Plane"), [""])
sketch14.MapMode = "FlatFace"
sketch14.AttachmentOffset = App.Placement(V(0, 0, -0.1), App.Rotation())
sketch14.addGeometry(Part.Circle(V(-41.7, 10.8, 0), V(0, 0, 1), 1.1), False)
sketch14.addGeometry(Part.Circle(V(-41.7, 4.8, 0), V(0, 0, 1), 1.1), False)
sketch14.addGeometry(Part.Circle(V(-37.2, 10.8, 0), V(0, 0, 1), 1.1), False)
sketch14.addGeometry(Part.Circle(V(-37.2, 4.8, 0), V(0, 0, 1), 1.1), False)
sketch14.addConstraint(Sketcher.Constraint("Equal", 0, 1))
sketch14.addConstraint(Sketcher.Constraint("Equal", 1, 2))
sketch14.addConstraint(Sketcher.Constraint("Equal", 2, 3))
sketch14.addConstraint(Sketcher.Constraint("Horizontal", 0, 3, 2, 3))
sketch14.addConstraint(Sketcher.Constraint("Horizontal", 1, 3, 3, 3))
sketch14.addConstraint(Sketcher.Constraint("Vertical", 2, 3, 3, 3))
sketch14.addConstraint(Sketcher.Constraint("Diameter", 0, 2.3))
sketch14.addConstraint(Sketcher.Constraint("DistanceY", 1, 3, 0, 3, 6.0))
sketch14.addConstraint(Sketcher.Constraint("DistanceY", -1, 1, 0, 3, 10.8))
sketch14.addConstraint(Sketcher.Constraint("DistanceX", 1, 3, 2, 3, 4.5))
sketch14.addConstraint(Sketcher.Constraint("DistanceX", 0, 3, 1, 3, 0.02))
sketch14.addConstraint(Sketcher.Constraint("DistanceX", 0, 3, -1, 1, 41.695))
pocket8 = body.newObject("PartDesign::Pocket", "Pocket007")
pocket8.Profile = sketch14
pocket8.Length = 10.1

# Sketch on XY plane
sketch15 = body.newObject("Sketcher::SketchObject", "Sketch014")
sketch15.AttachmentSupport = (doc.getObject("XY_Plane"), [""])
sketch15.MapMode = "FlatFace"
sketch15.AttachmentOffset = App.Placement(V(0, 0, -0.1), App.Rotation())
sketch15.addGeometry(Part.Circle(V(-37.2, 7.8, 0), V(0, 0, 1), 3.2), False)
sketch15.addConstraint(Sketcher.Constraint("Diameter", 0, 6.4))
sketch15.addConstraint(Sketcher.Constraint("DistanceY", -1, 1, 0, 3, 7.8))
sketch15.addConstraint(Sketcher.Constraint("DistanceX", 0, 3, -1, 1, 37.175))
pad7 = body.newObject("PartDesign::Pad", "Pad006")
pad7.Profile = sketch15
pad7.Length = 11.5

# Sketch on XY plane
sketch16 = body.newObject("Sketcher::SketchObject", "Sketch015")
sketch16.AttachmentSupport = (doc.getObject("XY_Plane"), [""])
sketch16.MapMode = "FlatFace"
sketch16.AttachmentOffset = App.Placement(V(0, 0, -0.1), App.Rotation())
sketch16.addGeometry(Part.LineSegment(V(-37.7, 11.3, 0), V(-37.7, 4.3, 0)), False)
sketch16.addGeometry(Part.ArcOfCircle(Part.Circle(V(-37.2, 4.3, 0), V(0, 0, 1), 0.5), math.radians(180), math.radians(360)), False)
sketch16.addGeometry(Part.LineSegment(V(-36.7, 4.3, 0), V(-36.7, 11.3, 0)), False)
sketch16.addGeometry(Part.ArcOfCircle(Part.Circle(V(-37.2, 11.3, 0), V(0, 0, 1), 0.5), math.radians(0), math.radians(180)), False)
sketch16.addGeometry(Part.LineSegment(V(-42.2, 11.3, 0), V(-42.2, 4.3, 0)), False)
sketch16.addGeometry(Part.ArcOfCircle(Part.Circle(V(-41.7, 4.3, 0), V(0, 0, 1), 0.5), math.radians(180), math.radians(360)), False)
sketch16.addGeometry(Part.LineSegment(V(-41.2, 4.3, 0), V(-41.2, 11.3, 0)), False)
sketch16.addGeometry(Part.ArcOfCircle(Part.Circle(V(-41.7, 11.3, 0), V(0, 0, 1), 0.5), math.radians(0), math.radians(180)), False)
sketch16.addConstraint(Sketcher.Constraint("Tangent", 0, 2, 1, 1))
sketch16.addConstraint(Sketcher.Constraint("Tangent", 1, 2, 2, 1))
sketch16.addConstraint(Sketcher.Constraint("Tangent", 2, 2, 3, 1))
sketch16.addConstraint(Sketcher.Constraint("Tangent", 3, 2, 0, 1))
sketch16.addConstraint(Sketcher.Constraint("Tangent", 4, 2, 5, 1))
sketch16.addConstraint(Sketcher.Constraint("Tangent", 5, 2, 6, 1))
sketch16.addConstraint(Sketcher.Constraint("Tangent", 6, 2, 7, 1))
sketch16.addConstraint(Sketcher.Constraint("Tangent", 7, 2, 4, 1))
sketch16.addConstraint(Sketcher.Constraint("Vertical", 0))
sketch16.addConstraint(Sketcher.Constraint("Vertical", 2))
sketch16.addConstraint(Sketcher.Constraint("Vertical", 4))
sketch16.addConstraint(Sketcher.Constraint("Vertical", 6))
sketch16.addConstraint(Sketcher.Constraint("Equal", 3, 5))
sketch16.addConstraint(Sketcher.Constraint("Horizontal", 1, 3, 5, 3))
sketch16.addConstraint(Sketcher.Constraint("Horizontal", 3, 3, 7, 3))
sketch16.addConstraint(Sketcher.Constraint("Radius", 1, 0.5))
sketch16.addConstraint(Sketcher.Constraint("DistanceY", 0, 2, 0, 1, 7.0))
sketch16.addConstraint(Sketcher.Constraint("DistanceX", 5, 3, 0, 2, 4.0))
sketch16.addConstraint(Sketcher.Constraint("DistanceY", -1, 1, 1, 3, 4.3))
sketch16.addConstraint(Sketcher.Constraint("DistanceX", 1, 3, -1, 1, 37.175))
pad8 = body.newObject("PartDesign::Pad", "Pad007")
pad8.Profile = sketch16
pad8.Length = 1

doc.recompute()
